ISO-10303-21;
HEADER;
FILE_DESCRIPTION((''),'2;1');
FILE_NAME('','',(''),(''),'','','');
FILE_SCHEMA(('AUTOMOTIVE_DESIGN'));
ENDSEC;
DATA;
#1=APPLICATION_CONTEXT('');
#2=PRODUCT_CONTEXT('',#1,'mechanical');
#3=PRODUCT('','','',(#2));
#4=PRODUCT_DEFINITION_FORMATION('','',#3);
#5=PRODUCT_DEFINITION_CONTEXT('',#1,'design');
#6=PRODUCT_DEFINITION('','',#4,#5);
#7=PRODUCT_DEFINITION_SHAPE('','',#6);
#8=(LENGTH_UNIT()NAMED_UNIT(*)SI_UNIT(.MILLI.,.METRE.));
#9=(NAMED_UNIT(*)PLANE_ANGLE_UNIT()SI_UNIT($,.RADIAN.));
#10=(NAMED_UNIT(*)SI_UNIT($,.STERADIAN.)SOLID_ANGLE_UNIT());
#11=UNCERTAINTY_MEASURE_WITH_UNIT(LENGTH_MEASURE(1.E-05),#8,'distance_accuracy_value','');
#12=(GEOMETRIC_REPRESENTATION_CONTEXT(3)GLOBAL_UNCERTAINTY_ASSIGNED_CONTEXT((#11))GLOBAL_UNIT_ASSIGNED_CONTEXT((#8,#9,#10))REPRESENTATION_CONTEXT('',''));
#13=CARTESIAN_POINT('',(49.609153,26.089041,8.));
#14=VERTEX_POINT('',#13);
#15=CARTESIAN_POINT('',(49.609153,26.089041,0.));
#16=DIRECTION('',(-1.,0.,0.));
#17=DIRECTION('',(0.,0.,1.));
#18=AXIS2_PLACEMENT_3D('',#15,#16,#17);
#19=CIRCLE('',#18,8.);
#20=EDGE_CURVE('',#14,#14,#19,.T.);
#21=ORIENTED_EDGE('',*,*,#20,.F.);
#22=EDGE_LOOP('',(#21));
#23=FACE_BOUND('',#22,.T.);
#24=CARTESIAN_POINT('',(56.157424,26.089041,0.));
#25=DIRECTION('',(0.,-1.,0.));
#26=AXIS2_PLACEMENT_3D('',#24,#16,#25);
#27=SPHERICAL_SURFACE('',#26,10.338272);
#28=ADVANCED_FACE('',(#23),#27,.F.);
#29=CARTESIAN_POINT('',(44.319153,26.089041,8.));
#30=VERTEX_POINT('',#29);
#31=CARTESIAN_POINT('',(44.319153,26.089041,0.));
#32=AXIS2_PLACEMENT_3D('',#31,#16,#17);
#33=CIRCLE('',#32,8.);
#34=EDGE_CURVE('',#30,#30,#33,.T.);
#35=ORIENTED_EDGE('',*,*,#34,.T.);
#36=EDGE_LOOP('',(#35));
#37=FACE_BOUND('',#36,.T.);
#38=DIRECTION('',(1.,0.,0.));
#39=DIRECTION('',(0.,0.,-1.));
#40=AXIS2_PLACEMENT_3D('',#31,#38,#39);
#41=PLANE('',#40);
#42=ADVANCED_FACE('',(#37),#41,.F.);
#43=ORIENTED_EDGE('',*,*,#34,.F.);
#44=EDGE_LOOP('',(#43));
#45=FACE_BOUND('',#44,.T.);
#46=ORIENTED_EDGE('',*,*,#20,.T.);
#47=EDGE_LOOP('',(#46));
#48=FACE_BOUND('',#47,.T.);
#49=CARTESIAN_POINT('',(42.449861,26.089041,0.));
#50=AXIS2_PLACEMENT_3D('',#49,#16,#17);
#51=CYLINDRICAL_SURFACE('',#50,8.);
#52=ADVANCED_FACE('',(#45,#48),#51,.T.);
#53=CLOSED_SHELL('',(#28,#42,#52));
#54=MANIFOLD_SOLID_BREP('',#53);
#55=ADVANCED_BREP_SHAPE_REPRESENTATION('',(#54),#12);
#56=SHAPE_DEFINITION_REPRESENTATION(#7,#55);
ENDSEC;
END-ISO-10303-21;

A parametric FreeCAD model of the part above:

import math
import FreeCAD as App
import Part
import Sketcher

doc = App.newDocument("Part")
body = doc.addObject("PartDesign::Body", "Body")

sketch1 = body.newObject("Sketcher::SketchObject", "Sketch")
sketch1.AttachmentSupport = (doc.getObject("XY_Plane"), [""])
sketch1.MapMode = "FlatFace"
sketch1.addGeometry(Part.LineSegment(App.Vector(44.3, 34.1, 0), App.Vector(44.3, 26.1, 0)), False)
sketch1.addGeometry(Part.LineSegment(App.Vector(44.3, 26.1, 0), App.Vector(45.8, 26.1, 0)), False)
sketch1.addGeometry(Part.ArcOfCircle(Part.Circle(App.Vector(56.2, 26.1, 0), App.Vector(0, 0, 1), 10.3), math.radians(129), math.radians(180)), False)
sketch1.addGeometry(Part.LineSegment(App.Vector(49.6, 34.1, 0), App.Vector(44.3, 34.1, 0)), False)
sketch1.addGeometry(Part.LineSegment(App.Vector(44.3, 26.1, 0), App.Vector(56.2, 26.1, 0)), True)
sketch1.addConstraint(Sketcher.Constraint("Coincident", 0, 2, 1, 1))
sketch1.addConstraint(Sketcher.Constraint("Coincident", 1, 2, 2, 2))
sketch1.addConstraint(Sketcher.Constraint("Coincident", 2, 1, 3, 1))
sketch1.addConstraint(Sketcher.Constraint("Coincident", 3, 2, 0, 1))
sketch1.addConstraint(Sketcher.Constraint("Vertical", 0))
sketch1.addConstraint(Sketcher.Constraint("Horizontal", 1))
sketch1.addConstraint(Sketcher.Constraint("Horizontal", 3))
sketch1.addConstraint(Sketcher.Constraint("Horizontal", 4))
sketch1.addConstraint(Sketcher.Constraint("Coincident", 4, 1, 0, 2))
sketch1.addConstraint(Sketcher.Constraint("Coincident", 4, 2, 2, 3))
sketch1.addConstraint(Sketcher.Constraint("DistanceY", 0, 2, 0, 1, 8.0))
sketch1.addConstraint(Sketcher.Constraint("DistanceX", 1, 1, 1, 2, 1.5))
sketch1.addConstraint(Sketcher.Constraint("DistanceX", 3, 2, 3, 1, 5.29))
sketch1.addConstraint(Sketcher.Constraint("DistanceY", -1, 1, 2, 3, 26.089041))
sketch1.addConstraint(Sketcher.Constraint("DistanceX", -1, 1, 2, 3, 56.157424))
revolution = body.newObject("PartDesign::Revolution", "Revolution")
revolution.Profile = sketch1
revolution.ReferenceAxis = (sketch1, ["Axis0"])
revolution.Angle = 360

doc.recompute()
